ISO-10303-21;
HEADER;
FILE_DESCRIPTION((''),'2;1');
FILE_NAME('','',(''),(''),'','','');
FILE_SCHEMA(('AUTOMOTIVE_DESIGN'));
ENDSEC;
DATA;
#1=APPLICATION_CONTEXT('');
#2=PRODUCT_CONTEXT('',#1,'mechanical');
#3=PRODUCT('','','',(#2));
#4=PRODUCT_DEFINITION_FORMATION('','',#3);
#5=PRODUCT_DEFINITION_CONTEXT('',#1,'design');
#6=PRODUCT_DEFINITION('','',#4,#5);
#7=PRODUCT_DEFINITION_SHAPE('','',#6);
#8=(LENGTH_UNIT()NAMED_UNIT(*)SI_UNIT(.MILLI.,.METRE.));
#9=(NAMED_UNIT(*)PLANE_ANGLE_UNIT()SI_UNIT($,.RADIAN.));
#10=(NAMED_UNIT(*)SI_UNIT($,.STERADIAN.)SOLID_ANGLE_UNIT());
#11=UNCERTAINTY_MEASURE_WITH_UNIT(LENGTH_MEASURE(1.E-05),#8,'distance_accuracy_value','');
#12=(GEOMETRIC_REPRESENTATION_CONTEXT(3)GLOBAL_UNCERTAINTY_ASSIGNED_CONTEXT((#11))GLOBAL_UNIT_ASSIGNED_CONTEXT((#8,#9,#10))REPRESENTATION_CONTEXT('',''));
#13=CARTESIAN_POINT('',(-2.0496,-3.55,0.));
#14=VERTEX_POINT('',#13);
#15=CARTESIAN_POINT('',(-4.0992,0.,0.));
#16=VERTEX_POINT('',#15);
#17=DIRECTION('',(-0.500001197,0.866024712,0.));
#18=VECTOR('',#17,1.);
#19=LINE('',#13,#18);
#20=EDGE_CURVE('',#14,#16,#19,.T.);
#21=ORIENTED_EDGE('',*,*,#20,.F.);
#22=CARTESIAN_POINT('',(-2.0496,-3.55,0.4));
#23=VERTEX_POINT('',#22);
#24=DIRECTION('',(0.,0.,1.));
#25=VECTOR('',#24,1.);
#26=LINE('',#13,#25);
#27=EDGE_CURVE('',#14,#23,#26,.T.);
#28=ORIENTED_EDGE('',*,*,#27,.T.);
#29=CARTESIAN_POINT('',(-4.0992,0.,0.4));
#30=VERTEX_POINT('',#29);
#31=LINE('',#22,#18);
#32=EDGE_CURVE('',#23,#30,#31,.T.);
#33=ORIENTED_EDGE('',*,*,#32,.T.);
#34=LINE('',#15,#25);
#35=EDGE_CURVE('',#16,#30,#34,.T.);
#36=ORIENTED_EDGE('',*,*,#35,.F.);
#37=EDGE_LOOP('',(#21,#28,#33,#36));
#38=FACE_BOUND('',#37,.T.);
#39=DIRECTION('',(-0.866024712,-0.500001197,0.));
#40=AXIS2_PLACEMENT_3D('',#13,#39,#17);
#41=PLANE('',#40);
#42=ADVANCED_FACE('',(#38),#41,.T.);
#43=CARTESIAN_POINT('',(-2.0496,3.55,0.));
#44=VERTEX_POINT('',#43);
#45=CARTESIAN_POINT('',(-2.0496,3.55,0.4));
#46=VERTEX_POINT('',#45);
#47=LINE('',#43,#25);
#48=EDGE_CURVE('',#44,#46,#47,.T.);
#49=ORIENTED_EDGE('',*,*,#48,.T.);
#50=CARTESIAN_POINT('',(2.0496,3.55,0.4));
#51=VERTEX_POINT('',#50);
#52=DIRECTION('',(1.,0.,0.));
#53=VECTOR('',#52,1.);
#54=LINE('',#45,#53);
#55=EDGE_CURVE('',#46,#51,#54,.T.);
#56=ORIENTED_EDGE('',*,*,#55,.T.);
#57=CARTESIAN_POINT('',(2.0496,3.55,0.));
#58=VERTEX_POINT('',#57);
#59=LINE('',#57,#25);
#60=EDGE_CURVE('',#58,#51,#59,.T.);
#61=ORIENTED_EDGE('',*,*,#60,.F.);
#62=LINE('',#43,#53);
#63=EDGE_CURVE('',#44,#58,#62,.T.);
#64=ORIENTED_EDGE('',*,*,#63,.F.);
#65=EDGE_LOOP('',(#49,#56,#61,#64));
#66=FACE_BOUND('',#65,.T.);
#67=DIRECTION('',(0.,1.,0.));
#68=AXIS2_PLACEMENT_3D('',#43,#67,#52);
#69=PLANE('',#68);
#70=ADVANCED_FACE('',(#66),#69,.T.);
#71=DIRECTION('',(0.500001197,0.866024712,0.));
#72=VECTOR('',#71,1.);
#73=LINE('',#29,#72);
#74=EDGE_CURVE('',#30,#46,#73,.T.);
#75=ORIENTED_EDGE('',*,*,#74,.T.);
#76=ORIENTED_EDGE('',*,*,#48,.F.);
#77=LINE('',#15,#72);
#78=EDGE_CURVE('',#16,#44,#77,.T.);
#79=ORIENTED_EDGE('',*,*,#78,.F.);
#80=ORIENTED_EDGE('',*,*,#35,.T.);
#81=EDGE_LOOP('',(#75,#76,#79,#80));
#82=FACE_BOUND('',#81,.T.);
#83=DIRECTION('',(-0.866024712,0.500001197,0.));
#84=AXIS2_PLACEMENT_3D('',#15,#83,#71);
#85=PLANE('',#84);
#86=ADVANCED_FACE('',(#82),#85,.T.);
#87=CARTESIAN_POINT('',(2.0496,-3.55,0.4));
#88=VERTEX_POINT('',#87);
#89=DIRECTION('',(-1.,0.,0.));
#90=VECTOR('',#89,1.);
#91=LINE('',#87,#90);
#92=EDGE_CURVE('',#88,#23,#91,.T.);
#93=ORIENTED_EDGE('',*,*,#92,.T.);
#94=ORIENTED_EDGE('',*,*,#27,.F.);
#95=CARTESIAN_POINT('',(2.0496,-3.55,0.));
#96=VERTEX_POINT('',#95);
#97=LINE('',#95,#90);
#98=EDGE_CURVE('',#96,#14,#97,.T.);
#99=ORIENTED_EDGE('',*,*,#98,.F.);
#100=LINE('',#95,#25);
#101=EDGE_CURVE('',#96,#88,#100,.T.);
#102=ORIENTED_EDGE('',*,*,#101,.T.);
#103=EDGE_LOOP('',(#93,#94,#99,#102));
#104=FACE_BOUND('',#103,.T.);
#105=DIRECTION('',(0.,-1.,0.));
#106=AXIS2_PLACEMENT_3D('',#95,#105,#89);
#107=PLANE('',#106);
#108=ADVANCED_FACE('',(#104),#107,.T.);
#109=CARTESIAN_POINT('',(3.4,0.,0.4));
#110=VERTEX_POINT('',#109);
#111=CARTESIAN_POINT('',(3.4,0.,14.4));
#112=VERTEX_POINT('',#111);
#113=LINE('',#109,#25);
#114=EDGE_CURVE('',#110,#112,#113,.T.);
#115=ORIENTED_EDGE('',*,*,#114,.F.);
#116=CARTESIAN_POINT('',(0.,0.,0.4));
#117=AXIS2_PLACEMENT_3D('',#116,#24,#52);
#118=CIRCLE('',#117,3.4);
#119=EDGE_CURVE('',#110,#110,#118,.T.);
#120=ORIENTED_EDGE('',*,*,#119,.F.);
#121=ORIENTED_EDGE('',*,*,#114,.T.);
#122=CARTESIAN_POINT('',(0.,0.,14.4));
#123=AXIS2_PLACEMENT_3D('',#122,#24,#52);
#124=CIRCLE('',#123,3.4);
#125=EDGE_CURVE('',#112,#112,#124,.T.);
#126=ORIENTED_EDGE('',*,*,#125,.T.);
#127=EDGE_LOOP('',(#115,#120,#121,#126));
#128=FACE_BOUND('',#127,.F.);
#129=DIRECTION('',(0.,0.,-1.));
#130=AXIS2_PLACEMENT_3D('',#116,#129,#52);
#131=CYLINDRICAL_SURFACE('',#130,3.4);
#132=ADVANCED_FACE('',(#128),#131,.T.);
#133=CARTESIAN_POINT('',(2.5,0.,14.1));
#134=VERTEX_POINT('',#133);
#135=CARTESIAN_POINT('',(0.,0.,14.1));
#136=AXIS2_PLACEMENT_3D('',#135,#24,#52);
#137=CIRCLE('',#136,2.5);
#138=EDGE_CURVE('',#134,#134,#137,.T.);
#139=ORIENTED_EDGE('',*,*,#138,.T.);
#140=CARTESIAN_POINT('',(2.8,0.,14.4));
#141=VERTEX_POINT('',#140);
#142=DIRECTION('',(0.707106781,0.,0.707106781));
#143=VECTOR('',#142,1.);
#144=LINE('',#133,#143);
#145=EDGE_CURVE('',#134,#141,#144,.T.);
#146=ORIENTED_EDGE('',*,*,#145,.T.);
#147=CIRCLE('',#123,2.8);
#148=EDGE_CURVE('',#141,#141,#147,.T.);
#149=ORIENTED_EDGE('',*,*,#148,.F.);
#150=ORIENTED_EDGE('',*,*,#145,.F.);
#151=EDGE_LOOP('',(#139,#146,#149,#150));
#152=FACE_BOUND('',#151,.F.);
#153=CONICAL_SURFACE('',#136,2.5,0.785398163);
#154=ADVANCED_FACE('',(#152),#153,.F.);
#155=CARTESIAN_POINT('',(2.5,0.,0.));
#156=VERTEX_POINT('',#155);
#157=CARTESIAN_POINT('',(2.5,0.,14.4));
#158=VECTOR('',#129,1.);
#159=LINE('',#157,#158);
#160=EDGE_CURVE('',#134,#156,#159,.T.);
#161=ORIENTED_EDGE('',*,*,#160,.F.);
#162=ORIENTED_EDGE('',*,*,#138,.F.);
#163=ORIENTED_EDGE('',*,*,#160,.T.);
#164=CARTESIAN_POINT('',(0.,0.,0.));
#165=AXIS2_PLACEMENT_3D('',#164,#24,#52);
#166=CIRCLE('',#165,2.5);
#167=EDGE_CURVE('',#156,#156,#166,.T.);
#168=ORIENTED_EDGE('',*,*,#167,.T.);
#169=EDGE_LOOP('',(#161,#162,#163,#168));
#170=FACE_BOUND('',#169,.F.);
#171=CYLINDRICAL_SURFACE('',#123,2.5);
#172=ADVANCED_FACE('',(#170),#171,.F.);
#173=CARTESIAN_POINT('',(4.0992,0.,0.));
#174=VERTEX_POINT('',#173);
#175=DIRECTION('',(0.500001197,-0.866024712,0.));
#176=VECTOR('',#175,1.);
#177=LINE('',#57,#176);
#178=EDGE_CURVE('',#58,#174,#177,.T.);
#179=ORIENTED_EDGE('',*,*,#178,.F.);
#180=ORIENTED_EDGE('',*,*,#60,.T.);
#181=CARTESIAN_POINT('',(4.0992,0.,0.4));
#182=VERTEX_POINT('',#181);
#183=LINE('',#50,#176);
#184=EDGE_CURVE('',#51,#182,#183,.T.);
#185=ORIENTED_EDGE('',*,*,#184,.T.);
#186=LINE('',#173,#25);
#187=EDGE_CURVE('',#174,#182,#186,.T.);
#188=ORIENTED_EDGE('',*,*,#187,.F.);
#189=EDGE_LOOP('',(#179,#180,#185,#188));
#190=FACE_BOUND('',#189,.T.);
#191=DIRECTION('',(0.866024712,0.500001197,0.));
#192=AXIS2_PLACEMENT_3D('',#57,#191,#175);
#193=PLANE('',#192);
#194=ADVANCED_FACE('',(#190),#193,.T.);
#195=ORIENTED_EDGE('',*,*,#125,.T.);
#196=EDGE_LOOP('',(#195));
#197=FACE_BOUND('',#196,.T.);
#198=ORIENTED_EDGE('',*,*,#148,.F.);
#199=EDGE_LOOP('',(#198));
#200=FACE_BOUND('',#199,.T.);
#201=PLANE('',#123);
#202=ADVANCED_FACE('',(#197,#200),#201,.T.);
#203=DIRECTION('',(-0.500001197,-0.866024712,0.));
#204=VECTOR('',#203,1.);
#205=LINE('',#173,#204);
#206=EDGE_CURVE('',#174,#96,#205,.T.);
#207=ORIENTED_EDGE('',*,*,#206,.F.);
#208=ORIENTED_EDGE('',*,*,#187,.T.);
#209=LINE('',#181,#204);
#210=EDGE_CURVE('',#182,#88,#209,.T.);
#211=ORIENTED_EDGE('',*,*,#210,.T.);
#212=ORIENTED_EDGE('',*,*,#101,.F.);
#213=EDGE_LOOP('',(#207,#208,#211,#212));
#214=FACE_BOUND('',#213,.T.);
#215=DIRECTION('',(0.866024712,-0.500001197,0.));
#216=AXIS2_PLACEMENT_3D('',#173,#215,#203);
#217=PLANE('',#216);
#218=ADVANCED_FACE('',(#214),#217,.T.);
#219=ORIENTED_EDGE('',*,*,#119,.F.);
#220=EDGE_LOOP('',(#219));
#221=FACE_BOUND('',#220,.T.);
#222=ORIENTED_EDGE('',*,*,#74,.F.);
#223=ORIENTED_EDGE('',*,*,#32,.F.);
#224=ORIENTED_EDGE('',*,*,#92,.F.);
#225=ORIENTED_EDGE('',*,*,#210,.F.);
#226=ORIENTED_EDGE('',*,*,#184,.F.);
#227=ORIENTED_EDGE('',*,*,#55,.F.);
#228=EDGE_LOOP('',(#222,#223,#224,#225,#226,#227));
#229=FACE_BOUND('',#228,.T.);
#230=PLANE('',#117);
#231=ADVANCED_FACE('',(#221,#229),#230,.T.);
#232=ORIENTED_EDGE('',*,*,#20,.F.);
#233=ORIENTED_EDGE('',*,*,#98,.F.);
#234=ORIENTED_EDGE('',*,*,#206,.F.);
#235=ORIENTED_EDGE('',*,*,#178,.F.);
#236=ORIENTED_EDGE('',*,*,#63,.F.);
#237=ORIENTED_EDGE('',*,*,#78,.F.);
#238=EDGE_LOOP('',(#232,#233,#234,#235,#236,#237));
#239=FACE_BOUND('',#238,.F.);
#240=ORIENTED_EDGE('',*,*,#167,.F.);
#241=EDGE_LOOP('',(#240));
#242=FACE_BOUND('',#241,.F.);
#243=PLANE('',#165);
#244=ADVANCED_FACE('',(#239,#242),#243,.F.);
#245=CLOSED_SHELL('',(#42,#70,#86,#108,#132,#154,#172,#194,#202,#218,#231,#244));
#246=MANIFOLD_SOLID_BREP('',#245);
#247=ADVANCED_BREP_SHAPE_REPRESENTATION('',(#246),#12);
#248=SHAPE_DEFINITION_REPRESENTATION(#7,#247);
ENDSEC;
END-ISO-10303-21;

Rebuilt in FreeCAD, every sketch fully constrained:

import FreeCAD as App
import Part
import Sketcher

V = App.Vector
Q = App.Units.Quantity


def edges_at(feature, points):
    """Names of the edges that pass closest to the given points."""
    edges = feature.Shape.Edges
    near = lambda p: min(range(len(edges)), key=lambda i: edges[i].distToShape(Part.Vertex(*p))[0])
    return sorted({f"Edge{near(p) + 1}" for p in points})

doc = App.newDocument("Part")
body = doc.addObject("PartDesign::Body", "Body")

sketch1 = body.newObject("Sketcher::SketchObject", "Sketch")
sketch1.AttachmentSupport = (doc.getObject("XY_Plane"), [""])
sketch1.MapMode = "FlatFace"
sketch1.addGeometry([
    Part.LineSegment(V(4.1, 0, 0), V(2, 3.5, 0)),
    Part.LineSegment(V(2, 3.5, 0), V(-2, 3.5, 0)),
    Part.LineSegment(V(-2, 3.5, 0), V(-4.1, 0, 0)),
    Part.LineSegment(V(-4.1, 0, 0), V(-2, -3.5, 0)),
    Part.LineSegment(V(-2, -3.5, 0), V(2, -3.5, 0)),
    Part.LineSegment(V(2, -3.5, 0), V(4.1, 0, 0)),
], False)
sketch1.addConstraint([
    Sketcher.Constraint("Coincident", 0, 2, 1, 1),
    Sketcher.Constraint("Coincident", 1, 2, 2, 1),
    Sketcher.Constraint("Coincident", 2, 2, 3, 1),
    Sketcher.Constraint("Coincident", 3, 2, 4, 1),
    Sketcher.Constraint("Coincident", 4, 2, 5, 1),
    Sketcher.Constraint("Coincident", 5, 2, 0, 1),
    Sketcher.Constraint("Horizontal", 1),
    Sketcher.Constraint("Horizontal", 4),
    Sketcher.Constraint("Symmetric", 0, 2, 3, 2, -1, 1),
    Sketcher.Constraint("Symmetric", 2, 2, 5, 2, -1, 1),
    Sketcher.Constraint("PointOnObject", 2, 2, -1),
    Sketcher.Constraint("Parallel", 2, 5),
    Sketcher.Constraint("Vertical", 1, 2, 3, 2),
    Sketcher.Constraint("DistanceY", 3, 2, 1, 2, 7.1),
    Sketcher.Constraint("Angle", 0, Q("120 deg")),
    Sketcher.Constraint("DistanceX", 1, 2, 1, 1, 4.0992),
])
pad1 = body.newObject("PartDesign::Pad", "Pad")
pad1.Profile = sketch1
pad1.Length = 0.4

sketch2 = body.newObject("Sketcher::SketchObject", "Sketch001")
sketch2.AttachmentSupport = (doc.getObject("XY_Plane"), [""])
sketch2.MapMode = "FlatFace"
sketch2.AttachmentOffset = App.Placement(V(0, 0, 0.4), App.Rotation())
sketch2.addGeometry(Part.Circle(V(0, 0, 0), V(0, 0, 1), 3.4), False)
sketch2.addConstraint([
    Sketcher.Constraint("Coincident", 0, 3, -1, 1),
    Sketcher.Constraint("Diameter", 0, 6.8),
])
pad2 = body.newObject("PartDesign::Pad", "Pad001")
pad2.Profile = sketch2
pad2.Length = 14

sketch3 = body.newObject("Sketcher::SketchObject", "Sketch002")
sketch3.AttachmentSupport = (doc.getObject("XY_Plane"), [""])
sketch3.MapMode = "FlatFace"
sketch3.AttachmentOffset = App.Placement(V(0, 0, 14.4), App.Rotation())
sketch3.addGeometry(Part.Circle(V(0, 0, 0), V(0, 0, 1), 2.5), False)
sketch3.addConstraint([
    Sketcher.Constraint("Coincident", 0, 3, -1, 1),
    Sketcher.Constraint("Diameter", 0, 5.0),
])
pocket1 = body.newObject("PartDesign::Pocket", "Pocket")
pocket1.Profile = sketch3
pocket1.Length = 15
doc.recompute()

chamfer = body.newObject("PartDesign::Chamfer", "Chamfer")
chamfer.Base = (pocket1, edges_at(pocket1, [(-2.5, 0, 14.4)]))
chamfer.Size = 0.3

doc.recompute()
